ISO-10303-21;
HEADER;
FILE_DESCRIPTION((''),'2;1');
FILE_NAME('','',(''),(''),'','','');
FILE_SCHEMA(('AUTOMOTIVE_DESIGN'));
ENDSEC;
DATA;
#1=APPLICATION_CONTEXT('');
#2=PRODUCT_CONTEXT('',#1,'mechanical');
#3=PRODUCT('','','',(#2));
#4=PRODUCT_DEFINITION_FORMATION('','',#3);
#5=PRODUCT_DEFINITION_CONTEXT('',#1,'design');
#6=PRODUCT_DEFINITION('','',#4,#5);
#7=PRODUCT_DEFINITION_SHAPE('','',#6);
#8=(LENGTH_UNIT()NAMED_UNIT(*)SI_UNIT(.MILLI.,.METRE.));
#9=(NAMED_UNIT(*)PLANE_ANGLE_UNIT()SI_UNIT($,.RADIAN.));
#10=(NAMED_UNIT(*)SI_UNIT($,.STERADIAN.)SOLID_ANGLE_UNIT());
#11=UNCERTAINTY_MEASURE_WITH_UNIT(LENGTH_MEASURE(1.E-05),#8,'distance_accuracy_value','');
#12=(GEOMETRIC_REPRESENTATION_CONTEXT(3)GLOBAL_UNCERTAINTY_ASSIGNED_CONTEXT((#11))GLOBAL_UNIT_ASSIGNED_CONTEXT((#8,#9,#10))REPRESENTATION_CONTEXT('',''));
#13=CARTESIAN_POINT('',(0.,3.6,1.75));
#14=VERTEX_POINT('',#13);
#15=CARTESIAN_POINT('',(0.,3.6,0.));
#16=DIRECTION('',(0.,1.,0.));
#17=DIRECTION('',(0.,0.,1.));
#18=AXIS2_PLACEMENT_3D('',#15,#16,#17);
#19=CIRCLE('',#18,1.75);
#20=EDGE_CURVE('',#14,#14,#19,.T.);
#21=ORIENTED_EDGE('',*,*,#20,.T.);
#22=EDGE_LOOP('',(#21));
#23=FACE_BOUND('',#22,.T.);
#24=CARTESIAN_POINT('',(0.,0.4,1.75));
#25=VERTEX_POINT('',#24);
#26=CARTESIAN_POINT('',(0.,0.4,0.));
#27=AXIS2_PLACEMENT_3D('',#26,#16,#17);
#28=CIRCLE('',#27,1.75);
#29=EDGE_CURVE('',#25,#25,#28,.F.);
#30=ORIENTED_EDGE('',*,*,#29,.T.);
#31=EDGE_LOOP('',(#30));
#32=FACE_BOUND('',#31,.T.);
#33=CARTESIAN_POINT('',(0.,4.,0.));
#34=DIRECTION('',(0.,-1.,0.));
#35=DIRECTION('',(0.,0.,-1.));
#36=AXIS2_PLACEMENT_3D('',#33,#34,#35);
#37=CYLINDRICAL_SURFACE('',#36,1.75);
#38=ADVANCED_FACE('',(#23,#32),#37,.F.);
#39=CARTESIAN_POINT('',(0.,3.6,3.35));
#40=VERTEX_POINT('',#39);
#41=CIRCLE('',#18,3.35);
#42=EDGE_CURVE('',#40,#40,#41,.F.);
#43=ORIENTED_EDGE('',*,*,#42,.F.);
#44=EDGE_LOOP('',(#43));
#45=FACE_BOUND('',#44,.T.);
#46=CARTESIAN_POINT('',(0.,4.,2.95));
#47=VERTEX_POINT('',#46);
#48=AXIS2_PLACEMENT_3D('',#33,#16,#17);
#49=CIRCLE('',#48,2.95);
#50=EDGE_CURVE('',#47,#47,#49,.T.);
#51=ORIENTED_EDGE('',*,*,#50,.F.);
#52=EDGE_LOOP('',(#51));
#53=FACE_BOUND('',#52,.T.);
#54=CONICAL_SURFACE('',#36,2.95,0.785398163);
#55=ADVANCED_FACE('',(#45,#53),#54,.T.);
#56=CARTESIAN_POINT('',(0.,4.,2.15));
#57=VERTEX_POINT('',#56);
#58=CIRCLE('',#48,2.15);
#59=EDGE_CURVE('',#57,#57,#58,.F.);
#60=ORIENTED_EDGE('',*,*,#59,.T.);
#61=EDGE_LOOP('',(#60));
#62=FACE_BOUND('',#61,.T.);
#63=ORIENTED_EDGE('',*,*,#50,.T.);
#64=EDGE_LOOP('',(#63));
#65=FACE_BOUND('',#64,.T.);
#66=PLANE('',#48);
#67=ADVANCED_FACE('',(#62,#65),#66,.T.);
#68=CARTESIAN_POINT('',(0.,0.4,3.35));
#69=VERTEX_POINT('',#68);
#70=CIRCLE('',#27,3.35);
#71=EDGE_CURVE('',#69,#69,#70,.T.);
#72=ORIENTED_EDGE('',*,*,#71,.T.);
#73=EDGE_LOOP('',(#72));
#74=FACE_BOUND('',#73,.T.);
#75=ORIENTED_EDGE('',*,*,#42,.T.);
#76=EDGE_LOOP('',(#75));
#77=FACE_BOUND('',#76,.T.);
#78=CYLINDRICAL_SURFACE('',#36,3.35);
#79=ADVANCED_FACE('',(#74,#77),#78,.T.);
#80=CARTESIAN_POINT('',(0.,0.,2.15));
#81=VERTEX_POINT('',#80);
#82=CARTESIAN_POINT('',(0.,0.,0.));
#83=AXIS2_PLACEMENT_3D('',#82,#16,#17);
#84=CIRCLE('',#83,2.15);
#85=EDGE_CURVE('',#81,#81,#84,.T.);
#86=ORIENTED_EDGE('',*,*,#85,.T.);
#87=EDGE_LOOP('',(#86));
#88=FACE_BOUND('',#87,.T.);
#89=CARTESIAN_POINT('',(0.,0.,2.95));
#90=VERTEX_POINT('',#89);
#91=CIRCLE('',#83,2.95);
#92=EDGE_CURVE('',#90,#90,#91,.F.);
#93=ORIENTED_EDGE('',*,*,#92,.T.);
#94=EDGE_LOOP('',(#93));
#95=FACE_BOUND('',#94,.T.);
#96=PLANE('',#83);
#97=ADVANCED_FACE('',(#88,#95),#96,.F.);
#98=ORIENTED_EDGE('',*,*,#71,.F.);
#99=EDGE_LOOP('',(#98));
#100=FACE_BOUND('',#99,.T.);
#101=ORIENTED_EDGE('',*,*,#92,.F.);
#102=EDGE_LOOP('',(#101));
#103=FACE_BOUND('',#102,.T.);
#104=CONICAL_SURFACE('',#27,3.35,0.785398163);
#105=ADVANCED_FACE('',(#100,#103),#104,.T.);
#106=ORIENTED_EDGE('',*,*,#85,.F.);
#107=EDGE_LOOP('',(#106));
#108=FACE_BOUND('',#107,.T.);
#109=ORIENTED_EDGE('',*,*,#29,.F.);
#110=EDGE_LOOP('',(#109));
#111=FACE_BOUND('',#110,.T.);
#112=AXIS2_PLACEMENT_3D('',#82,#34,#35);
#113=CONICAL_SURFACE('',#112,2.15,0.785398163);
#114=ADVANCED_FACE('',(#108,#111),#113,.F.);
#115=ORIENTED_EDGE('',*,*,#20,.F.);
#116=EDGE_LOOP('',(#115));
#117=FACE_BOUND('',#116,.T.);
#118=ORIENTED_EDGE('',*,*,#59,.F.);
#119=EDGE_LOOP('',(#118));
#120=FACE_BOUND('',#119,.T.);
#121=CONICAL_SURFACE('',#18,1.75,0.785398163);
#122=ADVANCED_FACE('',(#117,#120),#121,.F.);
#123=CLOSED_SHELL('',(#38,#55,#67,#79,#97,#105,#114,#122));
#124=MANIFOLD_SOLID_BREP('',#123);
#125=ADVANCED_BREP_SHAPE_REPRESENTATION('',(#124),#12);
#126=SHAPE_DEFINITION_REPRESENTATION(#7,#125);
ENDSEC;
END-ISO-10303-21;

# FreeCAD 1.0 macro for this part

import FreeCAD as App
import Part
import Sketcher

V = App.Vector


def edges_at(feature, points):
    """Names of the edges that pass closest to the given points."""
    edges = feature.Shape.Edges
    near = lambda p: min(range(len(edges)), key=lambda i: edges[i].distToShape(Part.Vertex(*p))[0])
    return sorted({f"Edge{near(p) + 1}" for p in points})

doc = App.newDocument("Part")
params = doc.addObject("Spreadsheet::Sheet", "Params")
for row, (alias, value) in enumerate([
    ("sketch1_diameter", "6.7 mm"),
    ("sketch1_diameter2", "3.5 mm"),
    ("pad1_length", "4 mm"),
    ("chamfer_size", "0.4 mm"),
], start=1):
    params.set(f"A{row}", alias)
    params.set(f"B{row}", "=" + value)
    params.setAlias(f"B{row}", alias)

body = doc.addObject("PartDesign::Body", "Body")

# Sketch on XZ plane
sketch1 = body.newObject("Sketcher::SketchObject", "Sketch")
sketch1.AttachmentSupport = (doc.getObject("XZ_Plane"), [""])
sketch1.MapMode = "FlatFace"
sketch1.addGeometry(Part.Circle(V(0, 0, 0), V(0, 0, 1), 3.35), False)
sketch1.addGeometry(Part.Circle(V(0, 0, 0), V(0, 0, 1), 1.75), False)
sketch1.addConstraint(Sketcher.Constraint("Coincident", 0, 3, -1, 1))
sketch1.addConstraint(Sketcher.Constraint("Coincident", 1, 3, -1, 1))
sketch1.addConstraint(Sketcher.Constraint("Diameter", 0, 6.7))
sketch1.addConstraint(Sketcher.Constraint("Diameter", 1, 3.5))
sketch1.setExpression("Constraints[2]", "Params.sketch1_diameter")
sketch1.setExpression("Constraints[3]", "Params.sketch1_diameter2")
pad1 = body.newObject("PartDesign::Pad", "Pad")
pad1.Profile = sketch1
pad1.setExpression("Length", "Params.pad1_length")
pad1.Reversed = True
doc.recompute()

chamfer = body.newObject("PartDesign::Chamfer", "Chamfer")
chamfer.Base = (pad1, edges_at(pad1, [
    (0, 0, -3.35),
    (0, 4, -3.35),
    (0, 0, -1.75),
    (0, 4, -1.75),
]))
chamfer.setExpression("Size", "Params.chamfer_size")

doc.recompute()
